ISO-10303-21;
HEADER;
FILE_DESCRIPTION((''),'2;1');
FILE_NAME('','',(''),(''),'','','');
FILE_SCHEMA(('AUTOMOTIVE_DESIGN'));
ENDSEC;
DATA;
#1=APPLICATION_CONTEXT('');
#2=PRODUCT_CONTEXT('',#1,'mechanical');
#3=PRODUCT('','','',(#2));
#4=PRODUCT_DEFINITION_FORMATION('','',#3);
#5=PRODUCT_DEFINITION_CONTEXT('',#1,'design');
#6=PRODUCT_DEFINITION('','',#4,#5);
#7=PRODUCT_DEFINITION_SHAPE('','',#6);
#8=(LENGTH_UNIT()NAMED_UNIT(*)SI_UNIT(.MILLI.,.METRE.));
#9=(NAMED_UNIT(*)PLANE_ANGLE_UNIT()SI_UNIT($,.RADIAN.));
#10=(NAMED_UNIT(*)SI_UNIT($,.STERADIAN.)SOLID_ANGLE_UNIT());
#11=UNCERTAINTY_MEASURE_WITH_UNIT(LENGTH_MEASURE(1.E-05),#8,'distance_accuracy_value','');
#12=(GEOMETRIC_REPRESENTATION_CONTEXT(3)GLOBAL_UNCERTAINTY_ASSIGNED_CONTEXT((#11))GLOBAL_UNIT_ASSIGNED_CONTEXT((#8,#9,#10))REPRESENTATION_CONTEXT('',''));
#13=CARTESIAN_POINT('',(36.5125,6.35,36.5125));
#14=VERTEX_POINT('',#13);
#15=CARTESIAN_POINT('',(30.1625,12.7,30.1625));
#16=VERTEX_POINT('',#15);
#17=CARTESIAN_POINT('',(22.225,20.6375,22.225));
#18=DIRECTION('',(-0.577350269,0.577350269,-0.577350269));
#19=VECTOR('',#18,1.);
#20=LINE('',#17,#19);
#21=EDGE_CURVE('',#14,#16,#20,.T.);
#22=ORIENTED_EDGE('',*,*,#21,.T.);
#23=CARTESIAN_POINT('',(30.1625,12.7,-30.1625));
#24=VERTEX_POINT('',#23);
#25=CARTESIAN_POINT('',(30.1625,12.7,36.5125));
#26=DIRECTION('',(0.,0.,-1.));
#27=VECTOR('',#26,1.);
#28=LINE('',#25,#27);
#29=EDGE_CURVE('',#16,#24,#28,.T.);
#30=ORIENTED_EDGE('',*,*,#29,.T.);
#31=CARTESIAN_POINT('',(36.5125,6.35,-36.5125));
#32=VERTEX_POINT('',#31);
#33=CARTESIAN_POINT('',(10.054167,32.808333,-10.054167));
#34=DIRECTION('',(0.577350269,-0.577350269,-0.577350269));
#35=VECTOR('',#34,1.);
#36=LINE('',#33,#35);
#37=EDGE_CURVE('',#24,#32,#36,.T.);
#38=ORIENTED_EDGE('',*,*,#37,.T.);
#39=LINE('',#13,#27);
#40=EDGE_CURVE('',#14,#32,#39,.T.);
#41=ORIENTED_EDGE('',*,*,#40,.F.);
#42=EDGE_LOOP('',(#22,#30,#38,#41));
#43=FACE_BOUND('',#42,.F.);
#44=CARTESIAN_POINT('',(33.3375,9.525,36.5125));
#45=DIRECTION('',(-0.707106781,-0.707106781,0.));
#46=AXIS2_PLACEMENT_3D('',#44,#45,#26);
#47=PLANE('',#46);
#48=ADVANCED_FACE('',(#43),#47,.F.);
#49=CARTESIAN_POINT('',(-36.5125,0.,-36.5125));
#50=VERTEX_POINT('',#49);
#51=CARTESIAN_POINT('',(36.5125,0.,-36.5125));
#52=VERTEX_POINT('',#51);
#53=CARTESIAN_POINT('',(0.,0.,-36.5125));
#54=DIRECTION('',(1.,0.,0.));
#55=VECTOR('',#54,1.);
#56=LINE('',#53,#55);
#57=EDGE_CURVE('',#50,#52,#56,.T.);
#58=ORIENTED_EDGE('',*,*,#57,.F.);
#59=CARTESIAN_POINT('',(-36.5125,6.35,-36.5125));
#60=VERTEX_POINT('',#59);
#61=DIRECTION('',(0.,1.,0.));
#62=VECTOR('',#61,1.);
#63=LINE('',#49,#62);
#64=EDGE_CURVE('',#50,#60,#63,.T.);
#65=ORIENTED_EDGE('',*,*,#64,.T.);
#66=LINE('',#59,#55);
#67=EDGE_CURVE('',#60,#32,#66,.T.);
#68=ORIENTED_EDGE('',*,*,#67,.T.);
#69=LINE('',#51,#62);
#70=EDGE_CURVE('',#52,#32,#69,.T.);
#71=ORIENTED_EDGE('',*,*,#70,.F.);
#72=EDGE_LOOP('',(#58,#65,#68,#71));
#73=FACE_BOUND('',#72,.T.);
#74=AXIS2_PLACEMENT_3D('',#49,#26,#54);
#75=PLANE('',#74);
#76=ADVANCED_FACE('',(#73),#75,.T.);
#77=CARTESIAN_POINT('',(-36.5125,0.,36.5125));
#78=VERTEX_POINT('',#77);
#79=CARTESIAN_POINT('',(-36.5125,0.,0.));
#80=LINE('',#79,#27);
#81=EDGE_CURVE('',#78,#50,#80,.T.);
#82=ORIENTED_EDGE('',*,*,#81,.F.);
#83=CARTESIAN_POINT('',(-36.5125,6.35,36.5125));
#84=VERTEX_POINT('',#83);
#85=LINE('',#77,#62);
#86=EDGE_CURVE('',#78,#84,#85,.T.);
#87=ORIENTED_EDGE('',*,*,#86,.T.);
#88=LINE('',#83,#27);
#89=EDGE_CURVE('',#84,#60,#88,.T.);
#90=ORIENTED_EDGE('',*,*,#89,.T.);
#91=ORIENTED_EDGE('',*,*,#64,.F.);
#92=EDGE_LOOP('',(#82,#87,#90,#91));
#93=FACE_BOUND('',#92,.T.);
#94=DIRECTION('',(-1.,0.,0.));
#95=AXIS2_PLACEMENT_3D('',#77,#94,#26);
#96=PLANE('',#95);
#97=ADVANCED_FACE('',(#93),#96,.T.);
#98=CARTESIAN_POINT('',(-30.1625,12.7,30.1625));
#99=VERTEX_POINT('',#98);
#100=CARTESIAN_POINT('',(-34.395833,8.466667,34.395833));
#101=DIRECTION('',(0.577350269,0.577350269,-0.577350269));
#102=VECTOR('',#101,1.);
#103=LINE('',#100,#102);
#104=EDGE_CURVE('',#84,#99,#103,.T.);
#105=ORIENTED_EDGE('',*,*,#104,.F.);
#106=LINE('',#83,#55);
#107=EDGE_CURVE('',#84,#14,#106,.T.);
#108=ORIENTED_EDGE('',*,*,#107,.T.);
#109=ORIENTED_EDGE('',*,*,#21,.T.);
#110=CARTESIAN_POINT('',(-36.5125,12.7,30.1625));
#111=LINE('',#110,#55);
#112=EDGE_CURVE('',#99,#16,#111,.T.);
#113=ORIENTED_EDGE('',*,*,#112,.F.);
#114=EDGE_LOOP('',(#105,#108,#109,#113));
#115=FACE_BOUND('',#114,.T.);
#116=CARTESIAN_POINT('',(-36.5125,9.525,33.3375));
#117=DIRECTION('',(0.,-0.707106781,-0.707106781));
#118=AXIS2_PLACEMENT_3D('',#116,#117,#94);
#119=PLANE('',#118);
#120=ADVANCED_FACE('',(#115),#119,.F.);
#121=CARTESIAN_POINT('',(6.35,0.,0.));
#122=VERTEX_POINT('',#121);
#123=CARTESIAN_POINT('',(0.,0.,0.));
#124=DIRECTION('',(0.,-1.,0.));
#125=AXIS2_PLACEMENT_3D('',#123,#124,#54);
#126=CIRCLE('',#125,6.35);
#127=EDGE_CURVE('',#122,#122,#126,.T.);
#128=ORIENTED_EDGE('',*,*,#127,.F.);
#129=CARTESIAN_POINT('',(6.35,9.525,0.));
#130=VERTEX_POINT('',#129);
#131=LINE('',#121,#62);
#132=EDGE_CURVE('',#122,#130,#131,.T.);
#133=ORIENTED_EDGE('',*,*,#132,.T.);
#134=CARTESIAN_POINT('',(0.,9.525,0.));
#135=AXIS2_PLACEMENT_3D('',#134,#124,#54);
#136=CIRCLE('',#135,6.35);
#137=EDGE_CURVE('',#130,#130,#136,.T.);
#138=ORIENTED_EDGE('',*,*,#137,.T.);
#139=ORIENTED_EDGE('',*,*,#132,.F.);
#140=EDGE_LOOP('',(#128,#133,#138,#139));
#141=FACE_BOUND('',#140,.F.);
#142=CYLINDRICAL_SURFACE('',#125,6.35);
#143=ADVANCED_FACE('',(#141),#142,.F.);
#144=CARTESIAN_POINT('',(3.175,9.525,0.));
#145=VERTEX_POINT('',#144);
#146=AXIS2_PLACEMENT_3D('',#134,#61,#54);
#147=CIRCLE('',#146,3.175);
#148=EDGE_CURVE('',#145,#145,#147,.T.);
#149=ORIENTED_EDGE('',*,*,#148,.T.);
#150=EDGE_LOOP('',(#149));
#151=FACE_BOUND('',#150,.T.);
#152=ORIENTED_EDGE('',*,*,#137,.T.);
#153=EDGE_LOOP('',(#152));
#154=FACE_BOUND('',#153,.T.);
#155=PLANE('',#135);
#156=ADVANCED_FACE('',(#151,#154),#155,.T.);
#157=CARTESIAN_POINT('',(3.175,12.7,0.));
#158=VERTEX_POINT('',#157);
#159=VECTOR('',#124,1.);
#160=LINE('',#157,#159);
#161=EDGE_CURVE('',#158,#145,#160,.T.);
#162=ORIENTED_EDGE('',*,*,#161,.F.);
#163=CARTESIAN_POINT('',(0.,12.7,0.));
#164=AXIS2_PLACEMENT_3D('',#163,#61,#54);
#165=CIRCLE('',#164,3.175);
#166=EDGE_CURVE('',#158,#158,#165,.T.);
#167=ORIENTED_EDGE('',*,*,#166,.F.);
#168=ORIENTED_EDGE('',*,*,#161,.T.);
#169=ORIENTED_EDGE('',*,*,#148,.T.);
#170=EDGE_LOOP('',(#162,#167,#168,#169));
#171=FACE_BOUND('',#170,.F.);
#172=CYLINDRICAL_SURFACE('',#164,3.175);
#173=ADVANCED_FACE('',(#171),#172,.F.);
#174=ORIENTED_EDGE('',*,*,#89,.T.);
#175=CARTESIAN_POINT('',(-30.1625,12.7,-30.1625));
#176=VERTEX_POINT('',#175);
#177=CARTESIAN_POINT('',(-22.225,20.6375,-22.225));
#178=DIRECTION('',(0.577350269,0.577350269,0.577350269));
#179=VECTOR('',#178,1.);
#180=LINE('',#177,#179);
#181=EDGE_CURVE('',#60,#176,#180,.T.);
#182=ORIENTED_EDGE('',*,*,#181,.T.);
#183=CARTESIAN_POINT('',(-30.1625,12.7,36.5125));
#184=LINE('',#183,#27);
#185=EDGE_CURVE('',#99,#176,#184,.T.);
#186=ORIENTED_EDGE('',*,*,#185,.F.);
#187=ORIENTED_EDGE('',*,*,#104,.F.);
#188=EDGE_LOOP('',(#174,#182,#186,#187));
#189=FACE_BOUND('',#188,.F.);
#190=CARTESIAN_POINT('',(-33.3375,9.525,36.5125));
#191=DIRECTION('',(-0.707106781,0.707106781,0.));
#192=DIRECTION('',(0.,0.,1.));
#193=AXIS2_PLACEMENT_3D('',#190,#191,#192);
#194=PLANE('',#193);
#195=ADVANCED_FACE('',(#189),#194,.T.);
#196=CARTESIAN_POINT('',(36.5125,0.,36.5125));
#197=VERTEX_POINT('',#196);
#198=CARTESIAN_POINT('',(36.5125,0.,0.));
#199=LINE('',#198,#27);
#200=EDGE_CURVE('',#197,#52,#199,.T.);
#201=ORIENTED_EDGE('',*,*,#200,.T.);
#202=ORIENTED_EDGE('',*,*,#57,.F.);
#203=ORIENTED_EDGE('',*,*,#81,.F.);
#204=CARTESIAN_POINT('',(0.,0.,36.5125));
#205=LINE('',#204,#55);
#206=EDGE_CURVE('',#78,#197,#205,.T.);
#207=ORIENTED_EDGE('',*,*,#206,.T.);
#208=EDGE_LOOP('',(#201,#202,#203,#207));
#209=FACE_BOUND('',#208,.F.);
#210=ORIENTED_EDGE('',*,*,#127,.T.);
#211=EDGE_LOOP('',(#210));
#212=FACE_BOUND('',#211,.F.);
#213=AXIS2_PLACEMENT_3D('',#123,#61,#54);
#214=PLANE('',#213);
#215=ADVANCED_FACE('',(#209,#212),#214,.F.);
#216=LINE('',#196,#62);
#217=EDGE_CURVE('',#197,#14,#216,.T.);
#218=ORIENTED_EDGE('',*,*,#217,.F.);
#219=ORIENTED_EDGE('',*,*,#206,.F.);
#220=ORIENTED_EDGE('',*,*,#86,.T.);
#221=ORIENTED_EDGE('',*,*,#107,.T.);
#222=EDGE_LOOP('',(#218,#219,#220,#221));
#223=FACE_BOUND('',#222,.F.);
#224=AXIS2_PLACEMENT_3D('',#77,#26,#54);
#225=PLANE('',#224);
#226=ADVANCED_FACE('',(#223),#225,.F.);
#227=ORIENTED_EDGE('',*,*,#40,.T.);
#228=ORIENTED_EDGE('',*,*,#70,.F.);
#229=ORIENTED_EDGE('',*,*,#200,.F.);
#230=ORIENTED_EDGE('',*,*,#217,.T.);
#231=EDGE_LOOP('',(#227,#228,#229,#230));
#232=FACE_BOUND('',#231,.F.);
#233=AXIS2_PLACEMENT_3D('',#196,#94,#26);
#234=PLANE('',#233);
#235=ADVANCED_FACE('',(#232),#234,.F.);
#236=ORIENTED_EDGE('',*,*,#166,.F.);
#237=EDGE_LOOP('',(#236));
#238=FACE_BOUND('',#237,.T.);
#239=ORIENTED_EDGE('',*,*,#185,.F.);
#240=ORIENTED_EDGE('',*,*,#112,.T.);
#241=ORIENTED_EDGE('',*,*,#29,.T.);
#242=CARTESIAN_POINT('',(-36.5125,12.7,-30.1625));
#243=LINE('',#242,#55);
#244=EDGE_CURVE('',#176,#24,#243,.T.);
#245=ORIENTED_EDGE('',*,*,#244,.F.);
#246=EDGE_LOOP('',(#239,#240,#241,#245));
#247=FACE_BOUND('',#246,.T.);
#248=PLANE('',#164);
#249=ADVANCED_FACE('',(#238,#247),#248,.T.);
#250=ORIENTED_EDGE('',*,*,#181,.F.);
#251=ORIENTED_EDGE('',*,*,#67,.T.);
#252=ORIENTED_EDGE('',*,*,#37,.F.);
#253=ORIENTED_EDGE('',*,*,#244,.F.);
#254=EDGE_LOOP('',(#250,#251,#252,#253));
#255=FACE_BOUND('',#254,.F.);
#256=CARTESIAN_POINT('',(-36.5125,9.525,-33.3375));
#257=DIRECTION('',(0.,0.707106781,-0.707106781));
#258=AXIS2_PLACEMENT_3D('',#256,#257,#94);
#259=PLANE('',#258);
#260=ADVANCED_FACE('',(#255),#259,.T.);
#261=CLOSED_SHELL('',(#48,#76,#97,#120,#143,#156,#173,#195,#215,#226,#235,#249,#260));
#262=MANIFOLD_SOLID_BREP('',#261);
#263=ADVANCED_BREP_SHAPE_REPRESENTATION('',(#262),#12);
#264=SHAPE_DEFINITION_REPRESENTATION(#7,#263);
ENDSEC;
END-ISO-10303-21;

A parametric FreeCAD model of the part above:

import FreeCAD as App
import Part
import Sketcher
Q = App.Units.Quantity


def edges_at(feature, points):
    """Names of the edges that pass closest to the given points."""
    edges = feature.Shape.Edges
    near = lambda p: min(range(len(edges)), key=lambda i: edges[i].distToShape(Part.Vertex(*p))[0])
    return sorted({f"Edge{near(p) + 1}" for p in points})

doc = App.newDocument("Part")
body = doc.addObject("PartDesign::Body", "Body")

# Sketch on XZ plane
sketch1 = body.newObject("Sketcher::SketchObject", "Sketch")
sketch1.AttachmentSupport = (doc.getObject("XZ_Plane"), [""])
sketch1.MapMode = "FlatFace"
sketch1.addGeometry(Part.LineSegment(App.Vector(-36.5125, -36.5125, 0), App.Vector(-36.5125, 36.5125, 0)), False)
sketch1.addGeometry(Part.LineSegment(App.Vector(-36.5125, 36.5125, 0), App.Vector(36.5125, 36.5125, 0)), False)
sketch1.addGeometry(Part.LineSegment(App.Vector(36.5125, 36.5125, 0), App.Vector(36.5125, -36.5125, 0)), False)
sketch1.addGeometry(Part.LineSegment(App.Vector(36.5125, -36.5125, 0), App.Vector(-36.5125, -36.5125, 0)), False)
sketch1.addConstraint(Sketcher.Constraint("Coincident", 0, 2, 1, 1))
sketch1.addConstraint(Sketcher.Constraint("Coincident", 1, 2, 2, 1))
sketch1.addConstraint(Sketcher.Constraint("Coincident", 2, 2, 3, 1))
sketch1.addConstraint(Sketcher.Constraint("Coincident", 3, 2, 0, 1))
sketch1.addConstraint(Sketcher.Constraint("Vertical", 0))
sketch1.addConstraint(Sketcher.Constraint("Horizontal", 1))
sketch1.addConstraint(Sketcher.Constraint("Vertical", 2))
sketch1.addConstraint(Sketcher.Constraint("Horizontal", 3))
sketch1.addConstraint(Sketcher.Constraint("Symmetric", 0, 2, 2, 2, -1, 1))
sketch1.addConstraint(Sketcher.Constraint("Equal", 3, 0))
sketch1.addConstraint(Sketcher.Constraint("DistanceX", 1, 1, 1, 2, Q("2.875 in")))
pad1 = body.newObject("PartDesign::Pad", "Pad")
pad1.Profile = sketch1
pad1.Length = Q("0.5 in")
pad1.Reversed = True

# Sketch on XZ plane
sketch2 = body.newObject("Sketcher::SketchObject", "Sketch001")
sketch2.AttachmentSupport = (doc.getObject("XZ_Plane"), [""])
sketch2.MapMode = "FlatFace"
sketch2.AttachmentOffset = App.Placement(App.Vector(0, 0, -0.5 * 25.4), App.Rotation())
sketch2.addGeometry(Part.Circle(App.Vector(0, 0, 0), App.Vector(0, 0, 1), 3.175), False)
sketch2.addConstraint(Sketcher.Constraint("Coincident", 0, 3, -1, 1))
sketch2.addConstraint(Sketcher.Constraint("Diameter", 0, Q("0.25 in")))
pocket1 = body.newObject("PartDesign::Pocket", "Pocket")
pocket1.Profile = sketch2
pocket1.Length = Q("0.125 in")
pocket1.Reversed = True

# Sketch on XZ plane
sketch3 = body.newObject("Sketcher::SketchObject", "Sketch002")
sketch3.AttachmentSupport = (doc.getObject("XZ_Plane"), [""])
sketch3.MapMode = "FlatFace"
sketch3.addGeometry(Part.Circle(App.Vector(0, 0, 0), App.Vector(0, 0, 1), 6.35), False)
sketch3.addConstraint(Sketcher.Constraint("Coincident", 0, 3, -1, 1))
sketch3.addConstraint(Sketcher.Constraint("Diameter", 0, Q("0.5 in")))
pocket2 = body.newObject("PartDesign::Pocket", "Pocket001")
pocket2.Profile = sketch3
pocket2.Length = Q("0.375 in")
doc.recompute()

chamfer = body.newObject("PartDesign::Chamfer", "Chamfer")
chamfer.Base = (pocket2, edges_at(pocket2, [
    (-36.513, 12.7, 0),
    (0, 12.7, 36.513),
    (36.513, 12.7, 0),
    (0, 12.7, -36.513),
]))
chamfer.Size = Q("0.25 in")

doc.recompute()
